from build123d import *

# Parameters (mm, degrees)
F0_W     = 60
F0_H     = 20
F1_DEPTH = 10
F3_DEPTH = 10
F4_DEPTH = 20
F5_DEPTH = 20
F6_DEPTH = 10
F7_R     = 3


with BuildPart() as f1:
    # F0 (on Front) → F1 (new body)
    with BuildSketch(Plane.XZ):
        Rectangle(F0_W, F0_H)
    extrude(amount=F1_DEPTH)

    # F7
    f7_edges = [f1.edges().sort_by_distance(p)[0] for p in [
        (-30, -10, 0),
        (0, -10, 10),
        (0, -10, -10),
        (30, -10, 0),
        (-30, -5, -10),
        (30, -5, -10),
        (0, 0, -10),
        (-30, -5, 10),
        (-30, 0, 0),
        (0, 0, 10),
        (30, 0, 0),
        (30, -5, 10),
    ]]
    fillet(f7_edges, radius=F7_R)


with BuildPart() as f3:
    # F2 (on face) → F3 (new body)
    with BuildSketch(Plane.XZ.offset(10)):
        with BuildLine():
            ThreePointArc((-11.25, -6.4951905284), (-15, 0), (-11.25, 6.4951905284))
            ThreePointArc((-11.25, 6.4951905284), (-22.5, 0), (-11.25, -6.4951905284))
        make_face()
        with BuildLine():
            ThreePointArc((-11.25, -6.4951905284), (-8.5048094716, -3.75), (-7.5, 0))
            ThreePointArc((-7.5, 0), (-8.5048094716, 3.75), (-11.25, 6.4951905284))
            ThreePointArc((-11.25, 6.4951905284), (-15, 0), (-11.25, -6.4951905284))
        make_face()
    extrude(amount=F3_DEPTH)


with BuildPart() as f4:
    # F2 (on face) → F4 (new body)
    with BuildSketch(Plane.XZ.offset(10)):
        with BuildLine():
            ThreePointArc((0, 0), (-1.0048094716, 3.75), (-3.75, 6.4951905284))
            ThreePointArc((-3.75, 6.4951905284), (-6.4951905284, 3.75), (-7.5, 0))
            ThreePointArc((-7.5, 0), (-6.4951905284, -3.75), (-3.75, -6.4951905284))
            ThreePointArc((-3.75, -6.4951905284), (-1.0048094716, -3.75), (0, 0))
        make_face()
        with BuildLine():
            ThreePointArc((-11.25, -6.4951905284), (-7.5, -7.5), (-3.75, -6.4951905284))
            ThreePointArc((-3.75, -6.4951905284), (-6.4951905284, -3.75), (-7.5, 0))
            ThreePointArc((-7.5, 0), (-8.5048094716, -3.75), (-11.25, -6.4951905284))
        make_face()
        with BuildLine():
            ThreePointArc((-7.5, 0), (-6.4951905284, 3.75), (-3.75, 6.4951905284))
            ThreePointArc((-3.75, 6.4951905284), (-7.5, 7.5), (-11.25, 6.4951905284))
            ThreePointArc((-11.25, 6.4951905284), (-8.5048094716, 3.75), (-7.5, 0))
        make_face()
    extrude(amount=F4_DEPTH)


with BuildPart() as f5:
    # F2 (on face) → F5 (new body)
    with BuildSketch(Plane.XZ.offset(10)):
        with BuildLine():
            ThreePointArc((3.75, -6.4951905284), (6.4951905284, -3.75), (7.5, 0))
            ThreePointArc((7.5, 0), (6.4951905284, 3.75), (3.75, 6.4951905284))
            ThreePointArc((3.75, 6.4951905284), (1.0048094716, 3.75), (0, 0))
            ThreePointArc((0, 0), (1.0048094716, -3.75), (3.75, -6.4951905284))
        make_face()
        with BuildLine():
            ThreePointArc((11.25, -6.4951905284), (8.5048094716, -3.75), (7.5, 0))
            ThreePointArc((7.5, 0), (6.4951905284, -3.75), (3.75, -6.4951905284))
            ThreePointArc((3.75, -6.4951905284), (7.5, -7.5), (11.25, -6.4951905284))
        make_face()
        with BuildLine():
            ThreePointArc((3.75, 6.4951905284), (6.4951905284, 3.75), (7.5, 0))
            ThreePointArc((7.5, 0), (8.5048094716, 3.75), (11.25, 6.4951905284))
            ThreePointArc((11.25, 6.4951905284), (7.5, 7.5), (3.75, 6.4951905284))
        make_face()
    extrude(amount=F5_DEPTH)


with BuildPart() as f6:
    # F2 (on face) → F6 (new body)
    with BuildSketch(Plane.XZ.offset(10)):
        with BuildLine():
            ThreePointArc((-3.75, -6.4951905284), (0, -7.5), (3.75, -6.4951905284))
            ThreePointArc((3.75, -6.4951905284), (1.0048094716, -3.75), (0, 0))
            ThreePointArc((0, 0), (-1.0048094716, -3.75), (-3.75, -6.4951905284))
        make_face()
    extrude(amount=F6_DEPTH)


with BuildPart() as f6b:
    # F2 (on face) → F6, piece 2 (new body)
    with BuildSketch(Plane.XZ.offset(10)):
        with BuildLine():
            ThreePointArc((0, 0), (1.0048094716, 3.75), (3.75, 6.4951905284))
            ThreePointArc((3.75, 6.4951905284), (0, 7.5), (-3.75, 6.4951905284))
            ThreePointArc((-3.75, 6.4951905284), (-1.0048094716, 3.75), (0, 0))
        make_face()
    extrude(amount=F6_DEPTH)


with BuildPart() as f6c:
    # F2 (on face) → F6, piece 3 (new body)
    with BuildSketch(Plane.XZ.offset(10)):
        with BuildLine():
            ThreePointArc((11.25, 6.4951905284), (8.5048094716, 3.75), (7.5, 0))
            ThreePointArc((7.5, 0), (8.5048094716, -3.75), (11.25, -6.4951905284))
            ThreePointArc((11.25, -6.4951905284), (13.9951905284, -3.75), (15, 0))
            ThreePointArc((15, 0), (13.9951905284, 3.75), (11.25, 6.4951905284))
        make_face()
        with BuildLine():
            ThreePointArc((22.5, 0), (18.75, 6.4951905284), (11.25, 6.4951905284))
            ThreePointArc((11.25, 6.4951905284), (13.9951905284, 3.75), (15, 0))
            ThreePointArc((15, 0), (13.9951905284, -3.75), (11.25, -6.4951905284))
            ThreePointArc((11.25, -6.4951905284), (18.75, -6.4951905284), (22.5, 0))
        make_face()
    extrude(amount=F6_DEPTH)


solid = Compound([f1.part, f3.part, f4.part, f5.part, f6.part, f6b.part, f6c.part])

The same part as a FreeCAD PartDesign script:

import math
import FreeCAD as App
import Part
import Sketcher

V = App.Vector
Q = App.Units.Quantity

doc = App.newDocument("Part")
params = doc.addObject("Spreadsheet::Sheet", "Params")
for row, (alias, value) in enumerate([
    ("sketch1_width", "60 mm"),
    ("sketch1_height", "20 mm"),
    ("pad1_length", "10 mm"),
    ("fillet_radius", "3 mm"),
    ("sketch2_diameter", "15 mm"),
    ("pad2_length", "10 mm"),
    ("sketch3_radius", "7.5 mm"),
    ("pad3_length", "20 mm"),
    ("sketch4_radius", "7.5 mm"),
    ("pad4_length", "20 mm"),
    ("sketch5_radius", "7.5 mm"),
    ("pad5_length", "10 mm"),
    ("sketch6_radius", "7.5 mm"),
    ("pad6_length", "10 mm"),
    ("sketch7_radius", "7.5 mm"),
    ("pad7_length", "10 mm"),
], start=1):
    params.set(f"A{row}", alias)
    params.set(f"B{row}", "=" + value)
    params.setAlias(f"B{row}", alias)

body = doc.addObject("PartDesign::Body", "Body")

sketch1 = body.newObject("Sketcher::SketchObject", "Sketch")
sketch1.AttachmentSupport = (doc.getObject("XZ_Plane"), [""])
sketch1.MapMode = "FlatFace"
sketch1.addGeometry([
    Part.LineSegment(V(-30, 10, 0), V(-30, -10, 0)),
    Part.LineSegment(V(-30, -10, 0), V(30, -10, 0)),
    Part.LineSegment(V(30, -10, 0), V(30, 10, 0)),
    Part.LineSegment(V(30, 10, 0), V(-30, 10, 0)),
], False)
sketch1.addConstraint([
    Sketcher.Constraint("Coincident", 0, 2, 1, 1),
    Sketcher.Constraint("Coincident", 1, 2, 2, 1),
    Sketcher.Constraint("Coincident", 2, 2, 3, 1),
    Sketcher.Constraint("Coincident", 3, 2, 0, 1),
    Sketcher.Constraint("Vertical", 0),
    Sketcher.Constraint("Horizontal", 1),
    Sketcher.Constraint("Vertical", 2),
    Sketcher.Constraint("Horizontal", 3),
    Sketcher.Constraint("Symmetric", 0, 2, 2, 2, -1, 1),
    Sketcher.Constraint("DistanceX", 1, 1, 1, 2, Q("60 mm")),
    Sketcher.Constraint("DistanceY", 0, 2, 0, 1, Q("20 mm")),
])
sketch1.setExpression("Constraints[9]", "Params.sketch1_width")
sketch1.setExpression("Constraints[10]", "Params.sketch1_height")
pad1 = body.newObject("PartDesign::Pad", "Pad")
pad1.Profile = sketch1
pad1.setExpression("Length", "Params.pad1_length")
doc.recompute()

fillet = body.newObject("PartDesign::Fillet", "Fillet")
fillet.Base = (pad1, ["Edge1"])
fillet.UseAllEdges = True
fillet.setExpression("Radius", "Params.fillet_radius")
body2 = doc.addObject("PartDesign::Body", "Body001")

sketch2 = body2.newObject("Sketcher::SketchObject", "Sketch001")
sketch2.AttachmentSupport = (doc.getObject("XZ_Plane001"), [""])
sketch2.MapMode = "FlatFace"
sketch2.AttachmentOffset = App.Placement(V(0, 0, 10), App.Rotation())
sketch2.addGeometry(Part.Circle(V(-15, 0, 0), V(0, 0, 1), 8), False)
sketch2.addConstraint([
    Sketcher.Constraint("PointOnObject", 0, 3, -1),
    Sketcher.Constraint("Diameter", 0, Q("15 mm")),
    Sketcher.Constraint("DistanceX", 0, 3, -1, 1, Q("15 mm")),
])
sketch2.setExpression("Constraints[1]", "Params.sketch2_diameter")
pad2 = body2.newObject("PartDesign::Pad", "Pad001")
pad2.Profile = sketch2
pad2.setExpression("Length", "Params.pad2_length")
body3 = doc.addObject("PartDesign::Body", "Body002")

sketch3 = body3.newObject("Sketcher::SketchObject", "Sketch002")
sketch3.AttachmentSupport = (doc.getObject("XZ_Plane002"), [""])
sketch3.MapMode = "FlatFace"
sketch3.AttachmentOffset = App.Placement(V(0, 0, 10), App.Rotation())
sketch3.addGeometry([
    Part.ArcOfCircle(Part.Circle(V(-8, 0, 0), V(0, 0, 1), 8), math.radians(0), math.radians(60)),
    Part.ArcOfCircle(Part.Circle(V(-8, 0, 0), V(0, 0, 1), 8), math.radians(60), math.radians(120)),
    Part.ArcOfCircle(Part.Circle(V(-15, 0, 0), V(0, 0, 1), 8), math.radians(0), math.radians(60)),
    Part.ArcOfCircle(Part.Circle(V(-15, 0, 0), V(0, 0, 1), 8), math.radians(-60), math.radians(0)),
    Part.ArcOfCircle(Part.Circle(V(-8, 0, 0), V(0, 0, 1), 8), math.radians(-120), math.radians(-60)),
    Part.ArcOfCircle(Part.Circle(V(-8, 0, 0), V(0, 0, 1), 8), math.radians(-60), math.radians(0)),
], False)
sketch3.addConstraint([
    Sketcher.Constraint("Tangent", 0, 2, 1, 1),
    Sketcher.Constraint("Coincident", 1, 2, 2, 2),
    Sketcher.Constraint("Tangent", 2, 1, 3, 2),
    Sketcher.Constraint("Coincident", 3, 1, 4, 1),
    Sketcher.Constraint("Tangent", 4, 2, 5, 1),
    Sketcher.Constraint("Tangent", 5, 2, 0, 1),
    Sketcher.Constraint("Coincident", 5, 2, -1, 1),
    Sketcher.Constraint("Coincident", 4, 3, 0, 3),
    Sketcher.Constraint("Coincident", 2, 1, 0, 3),
    Sketcher.Constraint("Equal", 0, 1),
    Sketcher.Constraint("Equal", 1, 2),
    Sketcher.Constraint("Equal", 2, 3),
    Sketcher.Constraint("Symmetric", 1, 2, 3, 1, -1),
    Sketcher.Constraint("Horizontal", 0, 2, 1, 2),
    Sketcher.Constraint("Horizontal", 3, 1, 4, 2),
    Sketcher.Constraint("Radius", 0, Q("7.5 mm")),
])
sketch3.setExpression("Constraints[15]", "Params.sketch3_radius")
pad3 = body3.newObject("PartDesign::Pad", "Pad002")
pad3.Profile = sketch3
pad3.setExpression("Length", "Params.pad3_length")
body4 = doc.addObject("PartDesign::Body", "Body003")

sketch4 = body4.newObject("Sketcher::SketchObject", "Sketch003")
sketch4.AttachmentSupport = (doc.getObject("XZ_Plane003"), [""])
sketch4.MapMode = "FlatFace"
sketch4.AttachmentOffset = App.Placement(V(0, 0, 10), App.Rotation())
sketch4.addGeometry([
    Part.ArcOfCircle(Part.Circle(V(8, 0, 0), V(0, 0, 1), 8), math.radians(120), math.radians(180)),
    Part.ArcOfCircle(Part.Circle(V(8, 0, 0), V(0, 0, 1), 8), math.radians(180), math.radians(240)),
    Part.ArcOfCircle(Part.Circle(V(8, 0, 0), V(0, 0, 1), 8), math.radians(-120), math.radians(-60)),
    Part.ArcOfCircle(Part.Circle(V(15, 0, 0), V(0, 0, 1), 8), math.radians(180), math.radians(240)),
    Part.ArcOfCircle(Part.Circle(V(15, 0, 0), V(0, 0, 1), 8), math.radians(120), math.radians(180)),
    Part.ArcOfCircle(Part.Circle(V(8, 0, 0), V(0, 0, 1), 8), math.radians(60), math.radians(120)),
], False)
sketch4.addConstraint([
    Sketcher.Constraint("Tangent", 0, 2, 1, 1),
    Sketcher.Constraint("Tangent", 1, 2, 2, 1),
    Sketcher.Constraint("Coincident", 2, 2, 3, 2),
    Sketcher.Constraint("Tangent", 3, 1, 4, 2),
    Sketcher.Constraint("Coincident", 4, 1, 5, 1),
    Sketcher.Constraint("Tangent", 5, 2, 0, 1),
    Sketcher.Constraint("Coincident", 0, 2, -1, 1),
    Sketcher.Constraint("Coincident", 2, 3, 0, 3),
    Sketcher.Constraint("Coincident", 3, 1, 0, 3),
    Sketcher.Constraint("Equal", 2, 3),
    Sketcher.Constraint("Equal", 3, 4),
    Sketcher.Constraint("Equal", 4, 5),
    Sketcher.Constraint("Symmetric", 2, 2, 4, 1, -1),
    Sketcher.Constraint("Horizontal", 1, 2, 2, 2),
    Sketcher.Constraint("Horizontal", 4, 1, 5, 2),
    Sketcher.Constraint("Radius", 0, Q("7.5 mm")),
])
sketch4.setExpression("Constraints[15]", "Params.sketch4_radius")
pad4 = body4.newObject("PartDesign::Pad", "Pad003")
pad4.Profile = sketch4
pad4.setExpression("Length", "Params.pad4_length")
body5 = doc.addObject("PartDesign::Body", "Body004")

sketch5 = body5.newObject("Sketcher::SketchObject", "Sketch004")
sketch5.AttachmentSupport = (doc.getObject("XZ_Plane004"), [""])
sketch5.MapMode = "FlatFace"
sketch5.AttachmentOffset = App.Placement(V(0, 0, 10), App.Rotation())
sketch5.addGeometry([
    Part.ArcOfCircle(Part.Circle(V(0, 0, 0), V(0, 0, 1), 8), math.radians(-120), math.radians(-60)),
    Part.ArcOfCircle(Part.Circle(V(8, 0, 0), V(0, 0, 1), 8), math.radians(180), math.radians(240)),
    Part.ArcOfCircle(Part.Circle(V(-8, 0, 0), V(0, 0, 1), 8), math.radians(-60), math.radians(0)),
], False)
sketch5.addConstraint([
    Sketcher.Constraint("Coincident", 0, 2, 1, 2),
    Sketcher.Constraint("Tangent", 1, 1, 2, 2),
    Sketcher.Constraint("Coincident", 2, 1, 0, 1),
    Sketcher.Constraint("Coincident", 0, 3, -1, 1),
    Sketcher.Constraint("Coincident", 1, 1, -1, 1),
    Sketcher.Constraint("Equal", 0, 1),
    Sketcher.Constraint("Equal", 1, 2),
    Sketcher.Constraint("PointOnObject", 1, 3, -1),
    Sketcher.Constraint("Radius", 0, Q("7.5 mm")),
])
sketch5.setExpression("Constraints[8]", "Params.sketch5_radius")
pad5 = body5.newObject("PartDesign::Pad", "Pad004")
pad5.Profile = sketch5
pad5.setExpression("Length", "Params.pad5_length")
body6 = doc.addObject("PartDesign::Body", "Body005")

sketch6 = body6.newObject("Sketcher::SketchObject", "Sketch005")
sketch6.AttachmentSupport = (doc.getObject("XZ_Plane005"), [""])
sketch6.MapMode = "FlatFace"
sketch6.AttachmentOffset = App.Placement(V(0, 0, 10), App.Rotation())
sketch6.addGeometry([
    Part.ArcOfCircle(Part.Circle(V(8, 0, 0), V(0, 0, 1), 8), math.radians(120), math.radians(180)),
    Part.ArcOfCircle(Part.Circle(V(0, 0, 0), V(0, 0, 1), 8), math.radians(60), math.radians(120)),
    Part.ArcOfCircle(Part.Circle(V(-8, 0, 0), V(0, 0, 1), 8), math.radians(0), math.radians(60)),
], False)
sketch6.addConstraint([
    Sketcher.Constraint("Coincident", 0, 1, 1, 1),
    Sketcher.Constraint("Coincident", 1, 2, 2, 2),
    Sketcher.Constraint("Tangent", 2, 1, 0, 2),
    Sketcher.Constraint("Coincident", 1, 3, -1, 1),
    Sketcher.Constraint("Coincident", 2, 1, -1, 1),
    Sketcher.Constraint("Equal", 0, 1),
    Sketcher.Constraint("Equal", 1, 2),
    Sketcher.Constraint("PointOnObject", 0, 3, -1),
    Sketcher.Constraint("Radius", 0, Q("7.5 mm")),
])
sketch6.setExpression("Constraints[8]", "Params.sketch6_radius")
pad6 = body6.newObject("PartDesign::Pad", "Pad005")
pad6.Profile = sketch6
pad6.setExpression("Length", "Params.pad6_length")
body7 = doc.addObject("PartDesign::Body", "Body006")

sketch7 = body7.newObject("Sketcher::SketchObject", "Sketch006")
sketch7.AttachmentSupport = (doc.getObject("XZ_Plane006"), [""])
sketch7.MapMode = "FlatFace"
sketch7.AttachmentOffset = App.Placement(V(0, 0, 10), App.Rotation())
sketch7.addGeometry([
    Part.ArcOfCircle(Part.Circle(V(15, 0, 0), V(0, 0, 1), 8), math.radians(120), math.radians(180)),
    Part.ArcOfCircle(Part.Circle(V(15, 0, 0), V(0, 0, 1), 8), math.radians(180), math.radians(240)),
    Part.ArcOfCircle(Part.Circle(V(15, 0, 0), V(0, 0, 1), 8), math.radians(-120), math.radians(0)),
    Part.ArcOfCircle(Part.Circle(V(15, 0, 0), V(0, 0, 1), 8), math.radians(0), math.radians(120)),
], False)
sketch7.addConstraint([
    Sketcher.Constraint("Tangent", 0, 2, 1, 1),
    Sketcher.Constraint("Tangent", 1, 2, 2, 1),
    Sketcher.Constraint("Tangent", 2, 2, 3, 1),
    Sketcher.Constraint("Tangent", 3, 2, 0, 1),
    Sketcher.Constraint("Equal", 0, 1),
    Sketcher.Constraint("Symmetric", 1, 2, 3, 2, -1),
    Sketcher.Constraint("PointOnObject", 0, 2, -1),
    Sketcher.Constraint("PointOnObject", 2, 2, -1),
    Sketcher.Constraint("Radius", 0, Q("7.5 mm")),
    Sketcher.Constraint("DistanceX", -1, 1, 0, 3, Q("15 mm")),
    Sketcher.Constraint("DistanceX", -1, 1, 1, 2, Q("11.25 mm")),
])
sketch7.setExpression("Constraints[8]", "Params.sketch7_radius")
pad7 = body7.newObject("PartDesign::Pad", "Pad006")
pad7.Profile = sketch7
pad7.setExpression("Length", "Params.pad7_length")

doc.recompute()
